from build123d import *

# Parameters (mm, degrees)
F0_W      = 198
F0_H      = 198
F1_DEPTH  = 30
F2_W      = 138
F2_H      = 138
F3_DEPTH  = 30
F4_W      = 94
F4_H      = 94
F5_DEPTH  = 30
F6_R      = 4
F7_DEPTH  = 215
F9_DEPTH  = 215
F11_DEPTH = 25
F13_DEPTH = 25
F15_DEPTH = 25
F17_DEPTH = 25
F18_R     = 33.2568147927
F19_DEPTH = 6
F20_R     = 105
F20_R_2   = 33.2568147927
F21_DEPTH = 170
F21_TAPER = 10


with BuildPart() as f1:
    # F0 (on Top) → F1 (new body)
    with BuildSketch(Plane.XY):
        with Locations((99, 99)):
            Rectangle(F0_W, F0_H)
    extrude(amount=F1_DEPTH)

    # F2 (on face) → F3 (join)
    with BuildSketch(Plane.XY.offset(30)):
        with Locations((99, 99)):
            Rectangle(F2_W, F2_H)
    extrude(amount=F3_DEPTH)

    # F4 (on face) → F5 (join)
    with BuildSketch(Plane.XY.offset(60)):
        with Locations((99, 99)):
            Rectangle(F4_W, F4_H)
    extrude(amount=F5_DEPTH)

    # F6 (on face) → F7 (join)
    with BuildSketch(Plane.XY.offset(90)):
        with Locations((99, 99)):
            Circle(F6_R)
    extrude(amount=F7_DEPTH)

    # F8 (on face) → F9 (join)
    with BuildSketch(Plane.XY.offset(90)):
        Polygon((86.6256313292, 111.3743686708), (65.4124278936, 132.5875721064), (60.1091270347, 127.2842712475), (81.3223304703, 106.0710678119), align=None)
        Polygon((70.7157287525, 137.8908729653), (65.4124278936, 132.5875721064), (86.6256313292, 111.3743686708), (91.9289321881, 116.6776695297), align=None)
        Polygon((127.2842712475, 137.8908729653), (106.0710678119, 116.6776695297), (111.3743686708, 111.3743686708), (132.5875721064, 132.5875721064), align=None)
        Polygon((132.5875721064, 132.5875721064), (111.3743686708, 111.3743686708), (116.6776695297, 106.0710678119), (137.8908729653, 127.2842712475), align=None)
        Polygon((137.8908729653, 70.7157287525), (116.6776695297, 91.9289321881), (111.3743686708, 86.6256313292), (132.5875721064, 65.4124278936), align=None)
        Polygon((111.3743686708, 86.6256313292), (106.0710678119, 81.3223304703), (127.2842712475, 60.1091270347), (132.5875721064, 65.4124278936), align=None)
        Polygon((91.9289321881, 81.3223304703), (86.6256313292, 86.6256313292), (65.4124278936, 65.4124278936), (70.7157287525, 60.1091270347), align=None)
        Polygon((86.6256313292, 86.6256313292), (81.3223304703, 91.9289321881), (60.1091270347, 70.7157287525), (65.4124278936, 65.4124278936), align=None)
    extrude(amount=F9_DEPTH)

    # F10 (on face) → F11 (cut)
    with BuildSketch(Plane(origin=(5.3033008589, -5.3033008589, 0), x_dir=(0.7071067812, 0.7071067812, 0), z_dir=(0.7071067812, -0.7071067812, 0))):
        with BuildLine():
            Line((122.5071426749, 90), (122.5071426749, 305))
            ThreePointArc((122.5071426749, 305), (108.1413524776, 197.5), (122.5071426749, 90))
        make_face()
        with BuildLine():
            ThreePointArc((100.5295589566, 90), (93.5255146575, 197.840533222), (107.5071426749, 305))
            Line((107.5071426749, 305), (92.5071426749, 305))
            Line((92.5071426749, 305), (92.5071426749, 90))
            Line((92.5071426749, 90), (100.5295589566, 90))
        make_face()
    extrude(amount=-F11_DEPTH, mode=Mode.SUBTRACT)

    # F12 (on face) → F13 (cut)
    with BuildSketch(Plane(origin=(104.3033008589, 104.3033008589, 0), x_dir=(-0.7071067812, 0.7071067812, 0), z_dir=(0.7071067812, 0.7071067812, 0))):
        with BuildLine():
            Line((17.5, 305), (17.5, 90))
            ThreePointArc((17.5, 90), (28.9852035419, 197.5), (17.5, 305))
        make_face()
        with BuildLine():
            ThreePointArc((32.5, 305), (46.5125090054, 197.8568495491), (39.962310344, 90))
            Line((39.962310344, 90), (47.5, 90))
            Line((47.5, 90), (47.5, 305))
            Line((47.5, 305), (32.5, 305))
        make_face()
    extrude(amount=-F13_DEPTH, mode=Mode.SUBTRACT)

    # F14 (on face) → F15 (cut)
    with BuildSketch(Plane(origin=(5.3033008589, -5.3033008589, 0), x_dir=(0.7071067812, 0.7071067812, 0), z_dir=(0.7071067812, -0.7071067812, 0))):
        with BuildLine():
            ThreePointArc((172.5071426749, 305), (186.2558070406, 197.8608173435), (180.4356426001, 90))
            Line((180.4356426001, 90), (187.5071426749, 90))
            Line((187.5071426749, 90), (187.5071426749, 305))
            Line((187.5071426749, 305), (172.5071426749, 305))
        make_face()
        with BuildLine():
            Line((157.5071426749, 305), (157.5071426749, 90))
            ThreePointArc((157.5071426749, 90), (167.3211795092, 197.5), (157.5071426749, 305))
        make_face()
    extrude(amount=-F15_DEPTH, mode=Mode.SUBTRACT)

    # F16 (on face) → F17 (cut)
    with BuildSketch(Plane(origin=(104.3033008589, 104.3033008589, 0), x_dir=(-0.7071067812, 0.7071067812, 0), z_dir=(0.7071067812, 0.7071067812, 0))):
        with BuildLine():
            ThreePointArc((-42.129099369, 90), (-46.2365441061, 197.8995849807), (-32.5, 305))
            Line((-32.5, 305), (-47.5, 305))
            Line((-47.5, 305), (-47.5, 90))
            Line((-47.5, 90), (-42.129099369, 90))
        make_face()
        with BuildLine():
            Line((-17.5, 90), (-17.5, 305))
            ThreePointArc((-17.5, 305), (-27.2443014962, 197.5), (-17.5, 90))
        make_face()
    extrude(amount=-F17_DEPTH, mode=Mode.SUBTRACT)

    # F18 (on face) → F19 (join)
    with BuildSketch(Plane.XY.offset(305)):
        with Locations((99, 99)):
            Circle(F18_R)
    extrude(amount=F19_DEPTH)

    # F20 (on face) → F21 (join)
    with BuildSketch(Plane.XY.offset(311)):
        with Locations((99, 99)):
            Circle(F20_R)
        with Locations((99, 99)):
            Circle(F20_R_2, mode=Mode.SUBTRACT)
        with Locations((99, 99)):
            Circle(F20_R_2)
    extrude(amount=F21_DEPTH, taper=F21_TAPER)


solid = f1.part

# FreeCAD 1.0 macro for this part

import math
import FreeCAD as App
import Part
import Sketcher

V = App.Vector
Q = App.Units.Quantity

doc = App.newDocument("Part")
params = doc.addObject("Spreadsheet::Sheet", "Params")
for row, (alias, value) in enumerate([
    ("sketch1_width", "198 mm"),
    ("pad1_length", "30 mm"),
    ("sketch2_width", "138 mm"),
    ("pad2_length", "30 mm"),
    ("sketch3_width", "94 mm"),
    ("pad3_length", "30 mm"),
    ("sketch4_diameter", "8 mm"),
    ("pad4_length", "215 mm"),
    ("sketch5_length", "30 mm"),
    ("sketch5_length2", "15 mm"),
    ("pad5_length", "215 mm"),
    ("sketch6_width", "15 mm"),
    ("sketch6_height", "215 mm"),
    ("pocket1_length", "25 mm"),
    ("sketch7_width", "15 mm"),
    ("sketch7_height", "215 mm"),
    ("pocket2_length", "25 mm"),
    ("sketch8_width", "15 mm"),
    ("sketch8_height", "215 mm"),
    ("pocket3_length", "25 mm"),
    ("sketch9_width", "15 mm"),
    ("sketch9_height", "215 mm"),
    ("pocket4_length", "25 mm"),
    ("pad6_length", "6 mm"),
    ("sketch11_diameter", "210 mm"),
    ("pad7_length", "170 mm"),
    ("pad7_taper", "-10 deg"),
], start=1):
    params.set(f"A{row}", alias)
    params.set(f"B{row}", "=" + value)
    params.setAlias(f"B{row}", alias)

body = doc.addObject("PartDesign::Body", "Body")

sketch1 = body.newObject("Sketcher::SketchObject", "Sketch")
sketch1.AttachmentSupport = (doc.getObject("XY_Plane"), [""])
sketch1.MapMode = "FlatFace"
sketch1.addGeometry([
    Part.LineSegment(V(0, 198, 0), V(0, 0, 0)),
    Part.LineSegment(V(0, 0, 0), V(198, 0, 0)),
    Part.LineSegment(V(198, 0, 0), V(198, 198, 0)),
    Part.LineSegment(V(198, 198, 0), V(0, 198, 0)),
], False)
sketch1.addConstraint([
    Sketcher.Constraint("Coincident", 0, 2, 1, 1),
    Sketcher.Constraint("Coincident", 1, 2, 2, 1),
    Sketcher.Constraint("Coincident", 2, 2, 3, 1),
    Sketcher.Constraint("Coincident", 3, 2, 0, 1),
    Sketcher.Constraint("Vertical", 0),
    Sketcher.Constraint("Horizontal", 1),
    Sketcher.Constraint("Vertical", 2),
    Sketcher.Constraint("Horizontal", 3),
    Sketcher.Constraint("Coincident", 0, 2, -1, 1),
    Sketcher.Constraint("Equal", 3, 0),
    Sketcher.Constraint("DistanceX", 1, 1, 1, 2, Q("198 mm")),
])
sketch1.setExpression("Constraints[10]", "Params.sketch1_width")
pad1 = body.newObject("PartDesign::Pad", "Pad")
pad1.Profile = sketch1
pad1.setExpression("Length", "Params.pad1_length")

sketch2 = body.newObject("Sketcher::SketchObject", "Sketch001")
sketch2.AttachmentSupport = (doc.getObject("XY_Plane"), [""])
sketch2.MapMode = "FlatFace"
sketch2.AttachmentOffset = App.Placement(V(0, 0, 30), App.Rotation())
sketch2.addGeometry([
    Part.LineSegment(V(30, 168, 0), V(30, 30, 0)),
    Part.LineSegment(V(30, 30, 0), V(168, 30, 0)),
    Part.LineSegment(V(168, 30, 0), V(168, 168, 0)),
    Part.LineSegment(V(168, 168, 0), V(30, 168, 0)),
], False)
sketch2.addConstraint([
    Sketcher.Constraint("Coincident", 0, 2, 1, 1),
    Sketcher.Constraint("Coincident", 1, 2, 2, 1),
    Sketcher.Constraint("Coincident", 2, 2, 3, 1),
    Sketcher.Constraint("Coincident", 3, 2, 0, 1),
    Sketcher.Constraint("Vertical", 0),
    Sketcher.Constraint("Horizontal", 1),
    Sketcher.Constraint("Vertical", 2),
    Sketcher.Constraint("Horizontal", 3),
    Sketcher.Constraint("Equal", 3, 0),
    Sketcher.Constraint("DistanceX", 1, 1, 1, 2, Q("138 mm")),
    Sketcher.Constraint("DistanceX", -1, 1, 0, 2, Q("30 mm")),
    Sketcher.Constraint("DistanceY", -1, 1, 0, 2, Q("30 mm")),
])
sketch2.setExpression("Constraints[9]", "Params.sketch2_width")
pad2 = body.newObject("PartDesign::Pad", "Pad001")
pad2.Profile = sketch2
pad2.setExpression("Length", "Params.pad2_length")

sketch3 = body.newObject("Sketcher::SketchObject", "Sketch002")
sketch3.AttachmentSupport = (doc.getObject("XY_Plane"), [""])
sketch3.MapMode = "FlatFace"
sketch3.AttachmentOffset = App.Placement(V(0, 0, 60), App.Rotation())
sketch3.addGeometry([
    Part.LineSegment(V(52, 146, 0), V(52, 52, 0)),
    Part.LineSegment(V(52, 52, 0), V(146, 52, 0)),
    Part.LineSegment(V(146, 52, 0), V(146, 146, 0)),
    Part.LineSegment(V(146, 146, 0), V(52, 146, 0)),
], False)
sketch3.addConstraint([
    Sketcher.Constraint("Coincident", 0, 2, 1, 1),
    Sketcher.Constraint("Coincident", 1, 2, 2, 1),
    Sketcher.Constraint("Coincident", 2, 2, 3, 1),
    Sketcher.Constraint("Coincident", 3, 2, 0, 1),
    Sketcher.Constraint("Vertical", 0),
    Sketcher.Constraint("Horizontal", 1),
    Sketcher.Constraint("Vertical", 2),
    Sketcher.Constraint("Horizontal", 3),
    Sketcher.Constraint("Equal", 3, 0),
    Sketcher.Constraint("DistanceX", 1, 1, 1, 2, Q("94 mm")),
    Sketcher.Constraint("DistanceX", -1, 1, 0, 2, Q("52 mm")),
    Sketcher.Constraint("DistanceY", -1, 1, 0, 2, Q("52 mm")),
])
sketch3.setExpression("Constraints[9]", "Params.sketch3_width")
pad3 = body.newObject("PartDesign::Pad", "Pad002")
pad3.Profile = sketch3
pad3.setExpression("Length", "Params.pad3_length")

sketch4 = body.newObject("Sketcher::SketchObject", "Sketch003")
sketch4.AttachmentSupport = (doc.getObject("XY_Plane"), [""])
sketch4.MapMode = "FlatFace"
sketch4.AttachmentOffset = App.Placement(V(0, 0, 90), App.Rotation())
sketch4.addGeometry(Part.Circle(V(99, 99, 0), V(0, 0, 1), 4), False)
sketch4.addConstraint([
    Sketcher.Constraint("Diameter", 0, Q("8 mm")),
    Sketcher.Constraint("DistanceX", -1, 1, 0, 3, Q("99 mm")),
    Sketcher.Constraint("DistanceY", -1, 1, 0, 3, Q("99 mm")),
])
sketch4.setExpression("Constraints[0]", "Params.sketch4_diameter")
pad4 = body.newObject("PartDesign::Pad", "Pad003")
pad4.Profile = sketch4
pad4.setExpression("Length", "Params.pad4_length")

sketch5 = body.newObject("Sketcher::SketchObject", "Sketch004")
sketch5.AttachmentSupport = (doc.getObject("XY_Plane"), [""])
sketch5.MapMode = "FlatFace"
sketch5.AttachmentOffset = App.Placement(V(0, 0, 90), App.Rotation())
sketch5.addGeometry([
    Part.LineSegment(V(60, 127, 0), V(81, 106, 0)),
    Part.LineSegment(V(81, 106, 0), V(92, 117, 0)),
    Part.LineSegment(V(92, 117, 0), V(71, 138, 0)),
    Part.LineSegment(V(71, 138, 0), V(60, 127, 0)),
    Part.LineSegment(V(127, 138, 0), V(106, 117, 0)),
    Part.LineSegment(V(106, 117, 0), V(117, 106, 0)),
    Part.LineSegment(V(117, 106, 0), V(138, 127, 0)),
    Part.LineSegment(V(138, 127, 0), V(127, 138, 0)),
    Part.LineSegment(V(138, 71, 0), V(117, 92, 0)),
    Part.LineSegment(V(117, 92, 0), V(106, 81, 0)),
    Part.LineSegment(V(106, 81, 0), V(127, 60, 0)),
    Part.LineSegment(V(127, 60, 0), V(138, 71, 0)),
    Part.LineSegment(V(92, 81, 0), V(81, 92, 0)),
    Part.LineSegment(V(81, 92, 0), V(60, 71, 0)),
    Part.LineSegment(V(60, 71, 0), V(71, 60, 0)),
    Part.LineSegment(V(71, 60, 0), V(92, 81, 0)),
], False)
sketch5.addConstraint([
    Sketcher.Constraint("Coincident", 0, 2, 1, 1),
    Sketcher.Constraint("Coincident", 1, 2, 2, 1),
    Sketcher.Constraint("Coincident", 2, 2, 3, 1),
    Sketcher.Constraint("Coincident", 3, 2, 0, 1),
    Sketcher.Constraint("Coincident", 4, 2, 5, 1),
    Sketcher.Constraint("Coincident", 5, 2, 6, 1),
    Sketcher.Constraint("Coincident", 6, 2, 7, 1),
    Sketcher.Constraint("Coincident", 7, 2, 4, 1),
    Sketcher.Constraint("Coincident", 8, 2, 9, 1),
    Sketcher.Constraint("Coincident", 9, 2, 10, 1),
    Sketcher.Constraint("Coincident", 10, 2, 11, 1),
    Sketcher.Constraint("Coincident", 11, 2, 8, 1),
    Sketcher.Constraint("Coincident", 12, 2, 13, 1),
    Sketcher.Constraint("Coincident", 13, 2, 14, 1),
    Sketcher.Constraint("Coincident", 14, 2, 15, 1),
    Sketcher.Constraint("Coincident", 15, 2, 12, 1),
    Sketcher.Constraint("Perpendicular", 0, 1),
    Sketcher.Constraint("Perpendicular", 1, 2),
    Sketcher.Constraint("Perpendicular", 2, 3),
    Sketcher.Constraint("Parallel", 3, 4),
    Sketcher.Constraint("Perpendicular", 4, 5),
    Sketcher.Constraint("Perpendicular", 5, 6),
    Sketcher.Constraint("Perpendicular", 6, 7),
    Sketcher.Constraint("Parallel", 7, 8),
    Sketcher.Constraint("Perpendicular", 8, 9),
    Sketcher.Constraint("Perpendicular", 9, 10),
    Sketcher.Constraint("Perpendicular", 10, 11),
    Sketcher.Constraint("Perpendicular", 11, 12),
    Sketcher.Constraint("Perpendicular", 12, 13),
    Sketcher.Constraint("Perpendicular", 13, 14),
    Sketcher.Constraint("Perpendicular", 14, 15),
    Sketcher.Constraint("Horizontal", 1, 2, 4, 2),
    Sketcher.Constraint("Horizontal", 0, 2, 5, 2),
    Sketcher.Constraint("Horizontal", 3, 2, 6, 2),
    Sketcher.Constraint("Horizontal", 8, 2, 12, 2),
    Sketcher.Constraint("Horizontal", 11, 2, 13, 2),
    Sketcher.Constraint("Horizontal", 10, 2, 14, 2),
    Sketcher.Constraint("Vertical", 5, 2, 8, 2),
    Sketcher.Constraint("Vertical", 4, 2, 9, 2),
    Sketcher.Constraint("Vertical", 7, 2, 10, 2),
    Sketcher.Constraint("Vertical", 0, 2, 12, 2),
    Sketcher.Constraint("Vertical", 3, 2, 13, 2),
    Sketcher.Constraint("Distance", 0, Q("30 mm")),
    Sketcher.Constraint("Distance", 1, Q("15 mm")),
    Sketcher.Constraint("DistanceX", -1, 1, 0, 2, Q("81.32233 mm")),
    Sketcher.Constraint("DistanceY", -1, 1, 1, 2, Q("116.67767 mm")),
    Sketcher.Constraint("DistanceX", -1, 1, 5, 2, Q("116.67767 mm")),
    Sketcher.Constraint("DistanceY", -1, 1, 9, 2, Q("81.32233 mm")),
])
sketch5.setExpression("Constraints[42]", "Params.sketch5_length")
sketch5.setExpression("Constraints[43]", "Params.sketch5_length2")
pad5 = body.newObject("PartDesign::Pad", "Pad004")
pad5.Profile = sketch5
pad5.setExpression("Length", "Params.pad5_length")

sketch6 = body.newObject("Sketcher::SketchObject", "Sketch005")
sketch6.Placement = App.Placement(V(5.303301, -5.303301, 0), App.Rotation(V(0.707106781, 0.707106781, 0), V(0, 0, 0.999999999), V(0.707106781, -0.707106781, 0), "ZXY"))
sketch6.addGeometry([
    Part.LineSegment(V(123, 90, 0), V(123, 305, 0)),
    Part.ArcOfCircle(Part.Circle(V(518, 197, 0), V(0, 0, 1), 409), math.radians(165), math.radians(195)),
    Part.ArcOfCircle(Part.Circle(V(649, 180, 0), V(0, 0, 1), 556), math.radians(167), math.radians(189)),
    Part.LineSegment(V(108, 305, 0), V(93, 305, 0)),
    Part.LineSegment(V(93, 305, 0), V(93, 90, 0)),
    Part.LineSegment(V(93, 90, 0), V(101, 90, 0)),
], False)
sketch6.addConstraint([
    Sketcher.Constraint("Coincident", 0, 1, 1, 2),
    Sketcher.Constraint("Coincident", 1, 1, 0, 2),
    Sketcher.Constraint("Coincident", 2, 1, 3, 1),
    Sketcher.Constraint("Coincident", 3, 2, 4, 1),
    Sketcher.Constraint("Coincident", 4, 2, 5, 1),
    Sketcher.Constraint("Coincident", 5, 2, 2, 2),
    Sketcher.Constraint("Vertical", 0),
    Sketcher.Constraint("Horizontal", 3),
    Sketcher.Constraint("Vertical", 4),
    Sketcher.Constraint("Horizontal", 5),
    Sketcher.Constraint("Horizontal", 0, 1, 4, 2),
    Sketcher.Constraint("Equal", 0, 4),
    Sketcher.Constraint("DistanceX", 3, 2, 3, 1, Q("15 mm")),
    Sketcher.Constraint("DistanceY", 0, 1, 0, 2, Q("215 mm")),
    Sketcher.Constraint("DistanceY", -1, 1, 0, 1, Q("90 mm")),
    Sketcher.Constraint("DistanceX", 2, 1, 1, 1, Q("15 mm")),
    Sketcher.Constraint("Radius", 1, Q("409.397108 mm")),
    Sketcher.Constraint("Radius", 2, Q("556.212431 mm")),
    Sketcher.Constraint("DistanceX", 1, 3, 2, 3, Q("131.906799 mm")),
    Sketcher.Constraint("DistanceX", -1, 1, 1, 3, Q("517.53846 mm")),
])
sketch6.setExpression("Constraints[12]", "Params.sketch6_width")
sketch6.setExpression("Constraints[13]", "Params.sketch6_height")
pocket1 = body.newObject("PartDesign::Pocket", "Pocket")
pocket1.Profile = sketch6
pocket1.setExpression("Length", "Params.pocket1_length")

sketch7 = body.newObject("Sketcher::SketchObject", "Sketch006")
sketch7.Placement = App.Placement(V(104.303301, 104.303301, 0), App.Rotation(V(-0.707106781, 0.707106781, 0), V(0, 0, 0.999999999), V(0.707106781, 0.707106781, 0), "ZXY"))
sketch7.addGeometry([
    Part.LineSegment(V(17, 305, 0), V(17, 90, 0)),
    Part.ArcOfCircle(Part.Circle(V(-480, 197, 0), V(0, 0, 1), 509), math.radians(-12), math.radians(12)),
    Part.ArcOfCircle(Part.Circle(V(-521, 178, 0), V(0, 0, 1), 567), math.radians(-9), math.radians(13)),
    Part.LineSegment(V(40, 90, 0), V(47, 90, 0)),
    Part.LineSegment(V(47, 90, 0), V(47, 305, 0)),
    Part.LineSegment(V(47, 305, 0), V(32, 305, 0)),
], False)
sketch7.addConstraint([
    Sketcher.Constraint("Coincident", 0, 1, 1, 2),
    Sketcher.Constraint("Coincident", 1, 1, 0, 2),
    Sketcher.Constraint("Coincident", 2, 1, 3, 1),
    Sketcher.Constraint("Coincident", 3, 2, 4, 1),
    Sketcher.Constraint("Coincident", 4, 2, 5, 1),
    Sketcher.Constraint("Coincident", 5, 2, 2, 2),
    Sketcher.Constraint("Vertical", 0),
    Sketcher.Constraint("Horizontal", 3),
    Sketcher.Constraint("Vertical", 4),
    Sketcher.Constraint("Horizontal", 5),
    Sketcher.Constraint("Horizontal", 0, 1, 4, 2),
    Sketcher.Constraint("Equal", 0, 4),
    Sketcher.Constraint("DistanceX", 5, 2, 5, 1, Q("15 mm")),
    Sketcher.Constraint("DistanceY", 0, 2, 0, 1, Q("215 mm")),
    Sketcher.Constraint("DistanceY", -1, 1, 0, 1, Q("305 mm")),
    Sketcher.Constraint("DistanceX", 1, 1, 3, 2, Q("30 mm")),
    Sketcher.Constraint("DistanceX", -1, 1, 0, 1, Q("17.5 mm")),
    Sketcher.Constraint("Radius", 1, Q("508.835558 mm")),
    Sketcher.Constraint("Radius", 2, Q("567.482587 mm")),
    Sketcher.Constraint("DistanceX", 3, 1, 3, 2, Q("7.53769 mm")),
])
sketch7.setExpression("Constraints[12]", "Params.sketch7_width")
sketch7.setExpression("Constraints[13]", "Params.sketch7_height")
pocket2 = body.newObject("PartDesign::Pocket", "Pocket001")
pocket2.Profile = sketch7
pocket2.setExpression("Length", "Params.pocket2_length")

sketch8 = body.newObject("Sketcher::SketchObject", "Sketch007")
sketch8.Placement = App.Placement(V(5.303301, -5.303301, 0), App.Rotation(V(0.707106781, 0.707106781, 0), V(0, 0, 0.999999999), V(0.707106781, -0.707106781, 0), "ZXY"))
sketch8.addGeometry([
    Part.ArcOfCircle(Part.Circle(V(-409, 176, 0), V(0, 0, 1), 596), math.radians(-8), math.radians(13)),
    Part.LineSegment(V(180, 90, 0), V(188, 90, 0)),
    Part.LineSegment(V(188, 90, 0), V(188, 305, 0)),
    Part.LineSegment(V(188, 305, 0), V(173, 305, 0)),
    Part.LineSegment(V(158, 305, 0), V(158, 90, 0)),
    Part.ArcOfCircle(Part.Circle(V(-426, 197, 0), V(0, 0, 1), 594), math.radians(-10), math.radians(10)),
], False)
sketch8.addConstraint([
    Sketcher.Constraint("Coincident", 0, 1, 1, 1),
    Sketcher.Constraint("Coincident", 1, 2, 2, 1),
    Sketcher.Constraint("Coincident", 2, 2, 3, 1),
    Sketcher.Constraint("Coincident", 3, 2, 0, 2),
    Sketcher.Constraint("Coincident", 4, 1, 5, 2),
    Sketcher.Constraint("Coincident", 5, 1, 4, 2),
    Sketcher.Constraint("Horizontal", 1),
    Sketcher.Constraint("Vertical", 2),
    Sketcher.Constraint("Horizontal", 3),
    Sketcher.Constraint("Vertical", 4),
    Sketcher.Constraint("Horizontal", 3, 2, 4, 1),
    Sketcher.Constraint("Equal", 2, 4),
    Sketcher.Constraint("DistanceX", 3, 2, 3, 1, Q("15 mm")),
    Sketcher.Constraint("DistanceY", 2, 1, 2, 2, Q("215 mm")),
    Sketcher.Constraint("DistanceY", -1, 1, 1, 2, Q("90 mm")),
    Sketcher.Constraint("DistanceX", 4, 1, 3, 2, Q("15 mm")),
    Sketcher.Constraint("Radius", 5, Q("593.66831 mm")),
    Sketcher.Constraint("DistanceX", 1, 1, 1, 2, Q("7.0715 mm")),
    Sketcher.Constraint("Radius", 0, Q("595.840708 mm")),
    Sketcher.Constraint("DistanceX", 5, 3, -1, 1, Q("426.34713 mm")),
])
sketch8.setExpression("Constraints[12]", "Params.sketch8_width")
sketch8.setExpression("Constraints[13]", "Params.sketch8_height")
pocket3 = body.newObject("PartDesign::Pocket", "Pocket002")
pocket3.Profile = sketch8
pocket3.setExpression("Length", "Params.pocket3_length")

sketch9 = body.newObject("Sketcher::SketchObject", "Sketch008")
sketch9.Placement = App.Placement(V(104.303301, 104.303301, 0), App.Rotation(V(-0.707106781, 0.707106781, 0), V(0, 0, 0.999999999), V(0.707106781, 0.707106781, 0), "ZXY"))
sketch9.addGeometry([
    Part.ArcOfCircle(Part.Circle(V(606, 169, 0), V(0, 0, 1), 653), math.radians(167.95), math.radians(186.92)),
    Part.LineSegment(V(-32, 305, 0), V(-47, 305, 0)),
    Part.LineSegment(V(-47, 305, 0), V(-47, 90, 0)),
    Part.LineSegment(V(-47, 90, 0), V(-42, 90, 0)),
    Part.LineSegment(V(-17, 90, 0), V(-17, 305, 0)),
    Part.ArcOfCircle(Part.Circle(V(571, 197, 0), V(0, 0, 1), 598), math.radians(170), math.radians(190)),
], False)
sketch9.addConstraint([
    Sketcher.Constraint("Coincident", 0, 1, 1, 1),
    Sketcher.Constraint("Coincident", 1, 2, 2, 1),
    Sketcher.Constraint("Coincident", 2, 2, 3, 1),
    Sketcher.Constraint("Coincident", 3, 2, 0, 2),
    Sketcher.Constraint("Coincident", 4, 1, 5, 2),
    Sketcher.Constraint("Coincident", 5, 1, 4, 2),
    Sketcher.Constraint("Horizontal", 1),
    Sketcher.Constraint("Vertical", 2),
    Sketcher.Constraint("Horizontal", 3),
    Sketcher.Constraint("Vertical", 4),
    Sketcher.Constraint("Horizontal", 3, 2, 4, 1),
    Sketcher.Constraint("Equal", 2, 4),
    Sketcher.Constraint("DistanceX", 1, 2, 1, 1, Q("15 mm")),
    Sketcher.Constraint("DistanceY", 2, 2, 2, 1, Q("215 mm")),
    Sketcher.Constraint("DistanceY", -1, 1, 1, 2, Q("305 mm")),
    Sketcher.Constraint("DistanceX", 2, 2, 4, 1, Q("30 mm")),
    Sketcher.Constraint("DistanceX", 0, 1, -1, 1, Q("32.5 mm")),
    Sketcher.Constraint("DistanceX", 3, 1, 3, 2, Q("5.370901 mm")),
    Sketcher.Constraint("Radius", 0, Q("652.741717 mm")),
    Sketcher.Constraint("Radius", 5, Q("597.846927 mm")),
])
sketch9.setExpression("Constraints[12]", "Params.sketch9_width")
sketch9.setExpression("Constraints[13]", "Params.sketch9_height")
pocket4 = body.newObject("PartDesign::Pocket", "Pocket003")
pocket4.Profile = sketch9
pocket4.setExpression("Length", "Params.pocket4_length")

sketch10 = body.newObject("Sketcher::SketchObject", "Sketch009")
sketch10.AttachmentSupport = (doc.getObject("XY_Plane"), [""])
sketch10.MapMode = "FlatFace"
sketch10.AttachmentOffset = App.Placement(V(0, 0, 305), App.Rotation())
sketch10.addGeometry(Part.Circle(V(99, 99, 0), V(0, 0, 1), 33), False)
sketch10.addConstraint([
    Sketcher.Constraint("DistanceX", -1, 1, 0, 3, Q("99 mm")),
    Sketcher.Constraint("DistanceY", -1, 1, 0, 3, Q("99 mm")),
    Sketcher.Constraint("Diameter", 0, Q("66.51363 mm")),
])
pad6 = body.newObject("PartDesign::Pad", "Pad005")
pad6.Profile = sketch10
pad6.setExpression("Length", "Params.pad6_length")

sketch11 = body.newObject("Sketcher::SketchObject", "Sketch010")
sketch11.AttachmentSupport = (doc.getObject("XY_Plane"), [""])
sketch11.MapMode = "FlatFace"
sketch11.AttachmentOffset = App.Placement(V(0, 0, 311), App.Rotation())
sketch11.addGeometry(Part.Circle(V(99, 99, 0), V(0, 0, 1), 105), False)
sketch11.addConstraint([
    Sketcher.Constraint("Diameter", 0, Q("210 mm")),
    Sketcher.Constraint("DistanceX", -1, 1, 0, 3, Q("99 mm")),
    Sketcher.Constraint("DistanceY", -1, 1, 0, 3, Q("99 mm")),
])
sketch11.setExpression("Constraints[0]", "Params.sketch11_diameter")
pad7 = body.newObject("PartDesign::Pad", "Pad006")
pad7.Profile = sketch11
pad7.setExpression("Length", "Params.pad7_length")
pad7.setExpression("TaperAngle", "Params.pad7_taper")

doc.recompute()
